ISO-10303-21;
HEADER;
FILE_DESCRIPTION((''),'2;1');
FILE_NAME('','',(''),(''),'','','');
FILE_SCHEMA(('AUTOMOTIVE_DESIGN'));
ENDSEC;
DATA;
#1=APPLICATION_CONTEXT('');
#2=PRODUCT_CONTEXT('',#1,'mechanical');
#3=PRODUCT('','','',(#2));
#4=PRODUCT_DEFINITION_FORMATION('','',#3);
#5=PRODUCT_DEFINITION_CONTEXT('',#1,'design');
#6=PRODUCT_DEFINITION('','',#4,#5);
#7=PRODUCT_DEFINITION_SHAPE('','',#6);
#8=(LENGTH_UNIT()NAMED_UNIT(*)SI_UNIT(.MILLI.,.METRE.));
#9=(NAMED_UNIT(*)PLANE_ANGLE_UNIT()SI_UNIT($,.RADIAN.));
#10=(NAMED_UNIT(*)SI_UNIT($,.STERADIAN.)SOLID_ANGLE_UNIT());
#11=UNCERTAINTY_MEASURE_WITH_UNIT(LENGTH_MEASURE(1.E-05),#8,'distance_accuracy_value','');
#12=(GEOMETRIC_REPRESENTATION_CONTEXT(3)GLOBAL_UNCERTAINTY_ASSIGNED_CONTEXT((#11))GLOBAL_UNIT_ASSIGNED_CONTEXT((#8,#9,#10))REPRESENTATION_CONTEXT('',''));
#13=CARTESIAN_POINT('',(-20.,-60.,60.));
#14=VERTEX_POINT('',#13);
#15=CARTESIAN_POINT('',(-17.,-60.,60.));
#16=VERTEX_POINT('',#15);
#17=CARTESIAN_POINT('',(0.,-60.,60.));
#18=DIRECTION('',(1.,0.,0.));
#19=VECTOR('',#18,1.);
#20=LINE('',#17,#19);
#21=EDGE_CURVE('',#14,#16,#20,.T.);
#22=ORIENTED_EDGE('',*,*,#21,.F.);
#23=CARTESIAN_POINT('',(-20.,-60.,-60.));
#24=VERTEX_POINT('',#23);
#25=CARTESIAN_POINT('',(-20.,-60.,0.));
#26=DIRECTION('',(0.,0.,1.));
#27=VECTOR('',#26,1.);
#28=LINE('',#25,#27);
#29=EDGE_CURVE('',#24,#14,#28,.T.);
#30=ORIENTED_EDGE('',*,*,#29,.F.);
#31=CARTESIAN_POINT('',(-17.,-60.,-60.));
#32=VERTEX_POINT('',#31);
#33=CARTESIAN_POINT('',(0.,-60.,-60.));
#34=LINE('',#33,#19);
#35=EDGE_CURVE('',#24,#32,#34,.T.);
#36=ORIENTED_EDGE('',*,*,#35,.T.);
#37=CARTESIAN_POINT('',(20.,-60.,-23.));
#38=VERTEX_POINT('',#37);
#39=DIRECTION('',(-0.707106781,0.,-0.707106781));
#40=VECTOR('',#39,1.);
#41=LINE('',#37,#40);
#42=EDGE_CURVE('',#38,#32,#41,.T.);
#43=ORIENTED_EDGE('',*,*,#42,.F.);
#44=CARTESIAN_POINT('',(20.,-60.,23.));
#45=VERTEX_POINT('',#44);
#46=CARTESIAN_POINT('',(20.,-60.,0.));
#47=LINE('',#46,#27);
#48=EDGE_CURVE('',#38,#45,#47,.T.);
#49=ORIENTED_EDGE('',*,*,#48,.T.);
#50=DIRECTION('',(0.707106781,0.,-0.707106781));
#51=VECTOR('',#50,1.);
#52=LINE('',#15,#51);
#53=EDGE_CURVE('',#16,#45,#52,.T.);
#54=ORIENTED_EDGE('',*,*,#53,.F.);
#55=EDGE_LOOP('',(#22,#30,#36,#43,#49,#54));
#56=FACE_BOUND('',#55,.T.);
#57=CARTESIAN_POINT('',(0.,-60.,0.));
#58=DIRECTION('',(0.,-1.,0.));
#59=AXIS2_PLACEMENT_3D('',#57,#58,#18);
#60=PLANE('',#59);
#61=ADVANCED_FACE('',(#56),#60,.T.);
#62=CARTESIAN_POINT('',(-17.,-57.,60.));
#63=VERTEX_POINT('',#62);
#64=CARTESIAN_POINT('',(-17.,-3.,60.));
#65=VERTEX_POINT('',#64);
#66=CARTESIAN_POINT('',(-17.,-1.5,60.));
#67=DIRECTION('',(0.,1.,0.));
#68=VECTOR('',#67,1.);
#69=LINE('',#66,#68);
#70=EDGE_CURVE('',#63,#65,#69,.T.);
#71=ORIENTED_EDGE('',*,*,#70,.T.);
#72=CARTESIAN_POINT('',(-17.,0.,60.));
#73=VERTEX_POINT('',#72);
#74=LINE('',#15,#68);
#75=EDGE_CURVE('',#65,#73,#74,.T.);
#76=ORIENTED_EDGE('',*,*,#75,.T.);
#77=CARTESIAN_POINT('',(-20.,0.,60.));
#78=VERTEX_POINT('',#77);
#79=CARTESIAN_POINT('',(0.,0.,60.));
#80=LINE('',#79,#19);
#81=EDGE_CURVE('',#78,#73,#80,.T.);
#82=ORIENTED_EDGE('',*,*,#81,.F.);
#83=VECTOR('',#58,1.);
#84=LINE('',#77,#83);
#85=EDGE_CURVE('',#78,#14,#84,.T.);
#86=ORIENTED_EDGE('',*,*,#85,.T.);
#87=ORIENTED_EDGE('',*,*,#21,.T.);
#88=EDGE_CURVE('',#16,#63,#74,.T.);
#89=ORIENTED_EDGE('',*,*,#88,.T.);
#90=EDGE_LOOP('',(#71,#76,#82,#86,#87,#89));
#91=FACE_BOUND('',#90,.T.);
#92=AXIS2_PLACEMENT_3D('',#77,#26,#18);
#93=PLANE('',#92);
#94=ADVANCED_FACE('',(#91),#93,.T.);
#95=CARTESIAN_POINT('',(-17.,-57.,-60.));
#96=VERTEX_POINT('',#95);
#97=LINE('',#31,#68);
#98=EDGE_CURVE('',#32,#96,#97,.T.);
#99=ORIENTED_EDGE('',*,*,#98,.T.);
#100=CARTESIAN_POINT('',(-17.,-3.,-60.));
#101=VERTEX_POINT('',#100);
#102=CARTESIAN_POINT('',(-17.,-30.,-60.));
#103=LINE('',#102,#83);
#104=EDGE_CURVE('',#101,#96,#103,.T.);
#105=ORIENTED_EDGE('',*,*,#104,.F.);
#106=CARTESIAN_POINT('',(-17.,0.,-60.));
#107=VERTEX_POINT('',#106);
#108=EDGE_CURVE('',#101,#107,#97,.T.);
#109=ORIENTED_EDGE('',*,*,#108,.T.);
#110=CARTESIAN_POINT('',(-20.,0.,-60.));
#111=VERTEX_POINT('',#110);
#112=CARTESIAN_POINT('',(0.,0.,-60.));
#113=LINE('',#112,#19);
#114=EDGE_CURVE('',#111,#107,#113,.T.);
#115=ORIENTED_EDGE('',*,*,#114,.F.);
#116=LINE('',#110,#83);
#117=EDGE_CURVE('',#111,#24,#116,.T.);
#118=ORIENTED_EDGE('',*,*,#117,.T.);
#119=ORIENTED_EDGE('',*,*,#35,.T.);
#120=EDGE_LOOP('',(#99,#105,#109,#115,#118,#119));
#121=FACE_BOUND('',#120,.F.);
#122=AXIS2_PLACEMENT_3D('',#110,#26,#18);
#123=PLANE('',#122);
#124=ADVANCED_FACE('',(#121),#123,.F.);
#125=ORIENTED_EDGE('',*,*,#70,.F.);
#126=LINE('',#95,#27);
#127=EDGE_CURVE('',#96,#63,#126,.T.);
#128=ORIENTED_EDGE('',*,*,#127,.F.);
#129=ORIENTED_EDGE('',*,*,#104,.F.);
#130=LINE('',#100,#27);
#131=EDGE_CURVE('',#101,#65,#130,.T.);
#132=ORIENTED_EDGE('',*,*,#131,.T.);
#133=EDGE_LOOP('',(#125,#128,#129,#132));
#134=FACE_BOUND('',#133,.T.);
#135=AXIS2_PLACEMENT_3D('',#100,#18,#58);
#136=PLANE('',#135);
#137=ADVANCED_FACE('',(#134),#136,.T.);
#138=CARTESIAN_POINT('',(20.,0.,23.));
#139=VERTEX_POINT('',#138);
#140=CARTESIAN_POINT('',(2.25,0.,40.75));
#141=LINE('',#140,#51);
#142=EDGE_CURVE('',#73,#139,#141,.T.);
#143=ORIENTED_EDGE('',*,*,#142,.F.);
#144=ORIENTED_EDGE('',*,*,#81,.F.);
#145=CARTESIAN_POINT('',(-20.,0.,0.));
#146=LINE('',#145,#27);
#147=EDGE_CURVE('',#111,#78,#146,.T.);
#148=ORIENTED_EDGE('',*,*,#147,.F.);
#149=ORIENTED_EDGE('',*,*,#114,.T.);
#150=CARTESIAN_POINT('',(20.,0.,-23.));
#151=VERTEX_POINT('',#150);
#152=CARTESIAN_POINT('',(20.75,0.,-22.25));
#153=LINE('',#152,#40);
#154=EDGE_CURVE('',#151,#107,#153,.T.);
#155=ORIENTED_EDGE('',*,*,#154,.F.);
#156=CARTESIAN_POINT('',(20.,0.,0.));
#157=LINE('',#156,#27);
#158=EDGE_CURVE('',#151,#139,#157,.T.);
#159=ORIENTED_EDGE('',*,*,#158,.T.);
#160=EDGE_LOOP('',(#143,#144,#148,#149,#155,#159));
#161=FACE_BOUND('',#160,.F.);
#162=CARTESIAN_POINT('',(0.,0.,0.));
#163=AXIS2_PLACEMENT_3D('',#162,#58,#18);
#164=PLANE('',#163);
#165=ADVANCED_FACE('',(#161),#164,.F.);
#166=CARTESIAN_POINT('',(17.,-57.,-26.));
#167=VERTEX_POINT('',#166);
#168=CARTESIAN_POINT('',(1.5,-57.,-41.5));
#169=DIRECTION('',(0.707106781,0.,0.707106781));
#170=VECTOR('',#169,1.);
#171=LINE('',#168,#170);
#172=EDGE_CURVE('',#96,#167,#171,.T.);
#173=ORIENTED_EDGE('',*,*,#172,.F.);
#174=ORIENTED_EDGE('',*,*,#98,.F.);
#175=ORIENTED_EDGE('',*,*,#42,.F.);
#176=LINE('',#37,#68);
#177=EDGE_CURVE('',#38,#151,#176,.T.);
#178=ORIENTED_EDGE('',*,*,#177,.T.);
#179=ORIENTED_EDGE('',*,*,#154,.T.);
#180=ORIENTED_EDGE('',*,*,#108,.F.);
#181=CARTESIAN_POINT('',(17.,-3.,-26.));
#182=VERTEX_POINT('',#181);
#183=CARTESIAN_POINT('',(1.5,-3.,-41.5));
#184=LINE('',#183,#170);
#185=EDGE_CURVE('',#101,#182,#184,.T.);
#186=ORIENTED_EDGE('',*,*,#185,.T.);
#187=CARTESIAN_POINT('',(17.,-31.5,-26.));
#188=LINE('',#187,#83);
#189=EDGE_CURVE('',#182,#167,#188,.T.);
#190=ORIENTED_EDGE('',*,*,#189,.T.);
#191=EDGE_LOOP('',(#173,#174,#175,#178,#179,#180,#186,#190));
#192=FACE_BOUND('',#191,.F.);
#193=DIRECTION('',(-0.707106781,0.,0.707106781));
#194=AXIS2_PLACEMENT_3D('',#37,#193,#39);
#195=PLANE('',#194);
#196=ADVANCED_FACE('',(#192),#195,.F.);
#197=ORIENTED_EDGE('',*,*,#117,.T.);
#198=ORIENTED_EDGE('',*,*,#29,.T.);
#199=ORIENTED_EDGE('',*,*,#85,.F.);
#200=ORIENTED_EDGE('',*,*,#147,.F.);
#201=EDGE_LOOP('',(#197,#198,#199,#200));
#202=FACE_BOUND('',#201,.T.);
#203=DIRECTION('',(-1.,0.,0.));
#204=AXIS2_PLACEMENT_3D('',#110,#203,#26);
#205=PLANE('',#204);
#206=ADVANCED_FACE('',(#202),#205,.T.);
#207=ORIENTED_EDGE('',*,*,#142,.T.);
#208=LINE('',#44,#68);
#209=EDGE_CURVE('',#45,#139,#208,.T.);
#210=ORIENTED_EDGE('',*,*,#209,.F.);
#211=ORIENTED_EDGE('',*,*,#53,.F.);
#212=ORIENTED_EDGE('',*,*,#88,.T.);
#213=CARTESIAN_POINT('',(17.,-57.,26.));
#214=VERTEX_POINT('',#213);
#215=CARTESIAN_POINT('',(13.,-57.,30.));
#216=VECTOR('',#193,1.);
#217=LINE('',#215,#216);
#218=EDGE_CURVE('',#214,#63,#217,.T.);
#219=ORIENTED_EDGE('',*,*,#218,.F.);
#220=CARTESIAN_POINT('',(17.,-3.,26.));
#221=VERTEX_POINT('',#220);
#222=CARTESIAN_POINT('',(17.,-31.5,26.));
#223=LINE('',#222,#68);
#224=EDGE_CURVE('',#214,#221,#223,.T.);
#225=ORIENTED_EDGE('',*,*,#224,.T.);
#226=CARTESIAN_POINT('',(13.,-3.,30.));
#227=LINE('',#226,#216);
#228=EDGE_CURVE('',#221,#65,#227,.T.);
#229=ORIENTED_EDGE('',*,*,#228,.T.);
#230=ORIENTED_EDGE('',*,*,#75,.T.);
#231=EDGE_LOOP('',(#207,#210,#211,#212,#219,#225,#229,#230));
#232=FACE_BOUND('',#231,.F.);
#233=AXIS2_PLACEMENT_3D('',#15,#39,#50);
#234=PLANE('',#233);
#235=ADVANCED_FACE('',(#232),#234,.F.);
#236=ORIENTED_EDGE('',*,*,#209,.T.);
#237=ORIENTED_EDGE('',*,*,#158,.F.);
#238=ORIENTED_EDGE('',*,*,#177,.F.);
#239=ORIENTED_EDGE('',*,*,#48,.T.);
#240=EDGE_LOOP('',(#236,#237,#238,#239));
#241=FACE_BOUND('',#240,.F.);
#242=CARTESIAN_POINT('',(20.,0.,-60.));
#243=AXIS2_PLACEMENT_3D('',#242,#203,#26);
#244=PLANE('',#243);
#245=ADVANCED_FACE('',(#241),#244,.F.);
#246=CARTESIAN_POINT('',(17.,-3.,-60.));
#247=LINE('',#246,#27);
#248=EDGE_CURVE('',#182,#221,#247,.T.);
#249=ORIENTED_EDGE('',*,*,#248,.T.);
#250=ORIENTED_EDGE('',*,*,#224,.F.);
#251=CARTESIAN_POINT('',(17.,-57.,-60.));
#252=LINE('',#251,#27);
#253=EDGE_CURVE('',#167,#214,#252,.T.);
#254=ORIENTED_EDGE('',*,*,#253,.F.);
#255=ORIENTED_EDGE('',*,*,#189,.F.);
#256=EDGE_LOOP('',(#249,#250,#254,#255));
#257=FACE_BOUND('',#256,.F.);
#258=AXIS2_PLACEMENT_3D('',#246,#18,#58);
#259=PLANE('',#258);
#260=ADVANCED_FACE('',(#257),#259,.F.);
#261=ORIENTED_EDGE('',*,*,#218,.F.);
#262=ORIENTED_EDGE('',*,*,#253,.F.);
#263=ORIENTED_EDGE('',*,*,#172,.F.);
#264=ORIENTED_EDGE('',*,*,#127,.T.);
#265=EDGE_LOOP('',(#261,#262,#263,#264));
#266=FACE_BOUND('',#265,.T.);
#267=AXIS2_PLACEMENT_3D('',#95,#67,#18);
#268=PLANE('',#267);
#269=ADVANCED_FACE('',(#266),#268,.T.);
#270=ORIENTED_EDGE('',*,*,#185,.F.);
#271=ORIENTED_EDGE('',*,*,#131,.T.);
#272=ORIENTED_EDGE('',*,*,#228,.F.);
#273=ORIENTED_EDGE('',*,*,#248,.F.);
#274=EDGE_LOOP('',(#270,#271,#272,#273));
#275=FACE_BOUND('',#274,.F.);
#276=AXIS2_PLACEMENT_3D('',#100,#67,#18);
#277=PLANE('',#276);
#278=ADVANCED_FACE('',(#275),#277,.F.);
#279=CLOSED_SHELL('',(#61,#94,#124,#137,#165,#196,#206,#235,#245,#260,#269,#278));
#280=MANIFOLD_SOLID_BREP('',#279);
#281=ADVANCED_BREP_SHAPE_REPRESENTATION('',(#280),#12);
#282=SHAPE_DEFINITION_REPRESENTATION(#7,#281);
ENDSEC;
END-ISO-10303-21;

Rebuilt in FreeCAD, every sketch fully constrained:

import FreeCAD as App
import Part
import Sketcher

V = App.Vector


def add_polygon(sketch, points):
    """Adds a closed chain of lines whose ends are joined by coincident constraints."""
    first, n = sketch.GeometryCount, len(points)
    for a, b in zip(points, points[1:] + points[:1]):
        sketch.addGeometry(Part.LineSegment(App.Vector(*a, 0), App.Vector(*b, 0)), False)
    for i in range(n):
        sketch.addConstraint(Sketcher.Constraint("Coincident", first + i, 2, first + (i + 1) % n, 1))

doc = App.newDocument("Part")
body = doc.addObject("PartDesign::Body", "Body")

sketch1 = body.newObject("Sketcher::SketchObject", "Sketch")
sketch1.AttachmentSupport = (doc.getObject("XZ_Plane"), [""])
sketch1.MapMode = "FlatFace"
add_polygon(sketch1, [(-20, 60), (-20, -60), (20, -60), (20, 60)])
sketch1.addConstraint([
    Sketcher.Constraint("Vertical", 0),
    Sketcher.Constraint("Horizontal", 1),
    Sketcher.Constraint("Vertical", 2),
    Sketcher.Constraint("Horizontal", 3),
    Sketcher.Constraint("Symmetric", 0, 2, 2, 2, -1, 1),
    Sketcher.Constraint("DistanceX", 1, 1, 1, 2, 40.0),
    Sketcher.Constraint("DistanceY", 0, 2, 0, 1, 120.0),
])
pad1 = body.newObject("PartDesign::Pad", "Pad")
pad1.Profile = sketch1
pad1.Length = 60

sketch2 = body.newObject("Sketcher::SketchObject", "Sketch001")
sketch2.AttachmentSupport = (doc.getObject("XY_Plane"), [""])
sketch2.MapMode = "FlatFace"
sketch2.AttachmentOffset = App.Placement(V(0, 0, -60), App.Rotation())
add_polygon(sketch2, [(-17, -57), (-17, -3), (17, -3), (17, -57)])
sketch2.addConstraint([
    Sketcher.Constraint("Vertical", 0),
    Sketcher.Constraint("Horizontal", 1),
    Sketcher.Constraint("Vertical", 2),
    Sketcher.Constraint("Horizontal", 3),
    Sketcher.Constraint("DistanceX", 1, 1, 1, 2, 34.0),
    Sketcher.Constraint("DistanceY", 0, 1, 0, 2, 54.0),
    Sketcher.Constraint("DistanceX", 0, 2, -1, 1, 17.0),
    Sketcher.Constraint("DistanceY", 0, 2, -1, 1, 3.0),
])
pocket1 = body.newObject("PartDesign::Pocket", "Pocket")
pocket1.Profile = sketch2
pocket1.Length = 450
pocket1.Reversed = True

sketch3 = body.newObject("Sketcher::SketchObject", "Sketch002")
sketch3.AttachmentSupport = (doc.getObject("XZ_Plane"), [""])
sketch3.MapMode = "FlatFace"
sketch3.AttachmentOffset = App.Placement(V(0, 0, 60), App.Rotation())
add_polygon(sketch3, [(20, 60), (-17, 60), (20, 23)])
add_polygon(sketch3, [(20, -60), (20, -23), (-17, -60)])
sketch3.addConstraint([
    Sketcher.Constraint("Horizontal", 0),
    Sketcher.Constraint("Vertical", 2),
    Sketcher.Constraint("Vertical", 3),
    Sketcher.Constraint("Horizontal", 5),
    Sketcher.Constraint("Symmetric", 1, 2, 3, 2, -1),
    Sketcher.Constraint("Symmetric", 0, 2, 4, 2, -1),
    Sketcher.Constraint("Perpendicular", 1, 4),
    Sketcher.Constraint("DistanceX", 0, 2, 0, 1, 37.0),
    Sketcher.Constraint("DistanceX", 0, 2, -1, 1, 17.0),
    Sketcher.Constraint("DistanceY", -1, 1, 0, 2, 60.0),
])
pocket2 = body.newObject("PartDesign::Pocket", "Pocket001")
pocket2.Profile = sketch3
pocket2.Length = 61

doc.recompute()
